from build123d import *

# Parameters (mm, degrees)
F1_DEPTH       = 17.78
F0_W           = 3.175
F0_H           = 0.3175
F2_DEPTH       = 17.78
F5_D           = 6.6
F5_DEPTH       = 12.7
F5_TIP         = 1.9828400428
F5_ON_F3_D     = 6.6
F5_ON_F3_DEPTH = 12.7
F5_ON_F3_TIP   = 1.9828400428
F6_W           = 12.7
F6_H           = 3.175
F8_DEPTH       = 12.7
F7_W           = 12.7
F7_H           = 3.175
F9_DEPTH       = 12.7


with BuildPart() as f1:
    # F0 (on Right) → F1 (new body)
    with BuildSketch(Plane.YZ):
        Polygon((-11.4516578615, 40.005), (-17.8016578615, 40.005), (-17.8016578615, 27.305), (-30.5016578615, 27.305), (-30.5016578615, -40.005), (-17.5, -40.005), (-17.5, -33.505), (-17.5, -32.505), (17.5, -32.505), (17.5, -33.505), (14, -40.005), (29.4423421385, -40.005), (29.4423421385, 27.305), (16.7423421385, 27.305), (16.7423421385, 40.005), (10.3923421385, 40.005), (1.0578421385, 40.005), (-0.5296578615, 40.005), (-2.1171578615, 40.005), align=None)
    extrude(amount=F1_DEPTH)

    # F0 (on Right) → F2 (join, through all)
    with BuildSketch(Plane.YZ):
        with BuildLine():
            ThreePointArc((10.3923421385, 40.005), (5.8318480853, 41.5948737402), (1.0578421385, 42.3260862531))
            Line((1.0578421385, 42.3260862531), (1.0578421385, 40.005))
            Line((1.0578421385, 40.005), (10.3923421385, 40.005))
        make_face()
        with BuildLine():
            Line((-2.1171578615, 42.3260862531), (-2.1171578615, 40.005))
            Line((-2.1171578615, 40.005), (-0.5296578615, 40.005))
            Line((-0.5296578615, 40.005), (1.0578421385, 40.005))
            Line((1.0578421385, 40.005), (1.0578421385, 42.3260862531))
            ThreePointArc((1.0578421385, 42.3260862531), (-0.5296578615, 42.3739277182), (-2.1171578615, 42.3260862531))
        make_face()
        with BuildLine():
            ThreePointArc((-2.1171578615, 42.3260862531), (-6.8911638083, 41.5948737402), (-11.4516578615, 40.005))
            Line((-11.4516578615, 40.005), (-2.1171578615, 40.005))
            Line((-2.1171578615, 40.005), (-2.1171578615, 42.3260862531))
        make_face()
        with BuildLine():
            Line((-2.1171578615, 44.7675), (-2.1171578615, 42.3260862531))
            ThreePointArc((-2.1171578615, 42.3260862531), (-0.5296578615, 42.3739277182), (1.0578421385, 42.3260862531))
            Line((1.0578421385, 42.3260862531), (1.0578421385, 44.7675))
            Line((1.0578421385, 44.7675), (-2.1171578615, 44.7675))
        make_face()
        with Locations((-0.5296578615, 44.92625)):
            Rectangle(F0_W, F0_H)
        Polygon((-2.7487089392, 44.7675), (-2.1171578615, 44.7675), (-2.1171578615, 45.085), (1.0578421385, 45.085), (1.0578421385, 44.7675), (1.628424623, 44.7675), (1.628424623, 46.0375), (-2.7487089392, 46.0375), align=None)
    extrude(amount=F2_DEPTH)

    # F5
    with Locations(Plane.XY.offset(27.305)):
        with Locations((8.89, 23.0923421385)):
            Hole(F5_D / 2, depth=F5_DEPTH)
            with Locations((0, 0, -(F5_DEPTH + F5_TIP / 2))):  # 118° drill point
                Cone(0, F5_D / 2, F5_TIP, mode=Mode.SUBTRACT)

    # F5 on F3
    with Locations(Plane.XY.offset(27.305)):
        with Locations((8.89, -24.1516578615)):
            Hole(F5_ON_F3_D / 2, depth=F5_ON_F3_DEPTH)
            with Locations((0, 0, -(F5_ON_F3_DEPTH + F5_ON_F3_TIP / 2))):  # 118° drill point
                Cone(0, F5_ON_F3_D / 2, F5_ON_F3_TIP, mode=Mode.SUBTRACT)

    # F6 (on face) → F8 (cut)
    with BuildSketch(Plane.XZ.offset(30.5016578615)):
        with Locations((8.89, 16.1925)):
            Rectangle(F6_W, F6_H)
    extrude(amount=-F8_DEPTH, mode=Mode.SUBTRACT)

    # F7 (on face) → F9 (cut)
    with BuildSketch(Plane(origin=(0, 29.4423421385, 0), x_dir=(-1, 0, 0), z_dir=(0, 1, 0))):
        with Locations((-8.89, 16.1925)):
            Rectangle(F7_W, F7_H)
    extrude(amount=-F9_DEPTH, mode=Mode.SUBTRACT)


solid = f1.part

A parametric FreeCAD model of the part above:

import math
import FreeCAD as App
import Part
import Sketcher

V = App.Vector
Q = App.Units.Quantity


def add_polygon(sketch, points):
    """Adds a closed chain of lines whose ends are joined by coincident constraints."""
    first, n = sketch.GeometryCount, len(points)
    for a, b in zip(points, points[1:] + points[:1]):
        sketch.addGeometry(Part.LineSegment(App.Vector(*a, 0), App.Vector(*b, 0)), False)
    for i in range(n):
        sketch.addConstraint(Sketcher.Constraint("Coincident", first + i, 2, first + (i + 1) % n, 1))

doc = App.newDocument("Part")
body = doc.addObject("PartDesign::Body", "Body")

# Sketch on YZ plane
sketch1 = body.newObject("Sketcher::SketchObject", "Sketch")
sketch1.AttachmentSupport = (doc.getObject("YZ_Plane"), [""])
sketch1.MapMode = "FlatFace"
add_polygon(sketch1, [(-17.8, 40), (-17.8, 27.3), (-30.5, 27.3), (-30.5, -40), (-17.5, -40), (-17.5, -32.5), (17.5, -32.5), (17.5, -33.5), (14, -40), (29.4, -40), (29.4, 27.3), (16.7, 27.3), (16.7, 40)])  # lines 0-12
sketch1.addConstraint(Sketcher.Constraint("Vertical", 0))
sketch1.addConstraint(Sketcher.Constraint("Horizontal", 1))
sketch1.addConstraint(Sketcher.Constraint("Vertical", 2))
sketch1.addConstraint(Sketcher.Constraint("Horizontal", 3))
sketch1.addConstraint(Sketcher.Constraint("Vertical", 4))
sketch1.addConstraint(Sketcher.Constraint("Horizontal", 5))
sketch1.addConstraint(Sketcher.Constraint("Vertical", 6))
sketch1.addConstraint(Sketcher.Constraint("Horizontal", 8))
sketch1.addConstraint(Sketcher.Constraint("Vertical", 9))
sketch1.addConstraint(Sketcher.Constraint("Horizontal", 10))
sketch1.addConstraint(Sketcher.Constraint("Vertical", 11))
sketch1.addConstraint(Sketcher.Constraint("Horizontal", 12))
sketch1.addConstraint(Sketcher.Constraint("Horizontal", 3, 2, 7, 2))
sketch1.addConstraint(Sketcher.Constraint("Horizontal", 1, 2, 9, 2))
sketch1.addConstraint(Sketcher.Constraint("Equal", 1, 10))
sketch1.addConstraint(Sketcher.Constraint("Equal", 10, 0))
sketch1.addConstraint(Sketcher.Constraint("DistanceX", 1, 2, 1, 1, Q("0.5 in")))
sketch1.addConstraint(Sketcher.Constraint("DistanceX", 12, 2, 12, 1, Q("1.36 in")))
sketch1.addConstraint(Sketcher.Constraint("DistanceY", 2, 2, 2, 1, Q("2.65 in")))
sketch1.addConstraint(Sketcher.Constraint("DistanceY", -1, 1, 0, 2, Q("1.075 in")))
sketch1.addConstraint(Sketcher.Constraint("DistanceX", 5, 1, 5, 2, Q("35 mm")))
sketch1.addConstraint(Sketcher.Constraint("DistanceY", 4, 1, 4, 2, Q("7.5 mm")))
sketch1.addConstraint(Sketcher.Constraint("DistanceY", 6, 2, 6, 1, Q("1 mm")))
sketch1.addConstraint(Sketcher.Constraint("DistanceX", 3, 2, -1, 1, Q("17.5 mm")))
sketch1.addConstraint(Sketcher.Constraint("DistanceX", -1, 1, 7, 2, Q("14 mm")))
sketch1.addConstraint(Sketcher.Constraint("DistanceX", 3, 1, 3, 2, Q("13.001658 mm")))
pad1 = body.newObject("PartDesign::Pad", "Pad")
pad1.Profile = sketch1
pad1.Length = Q("0.7 in")

# Sketch on YZ plane
sketch2 = body.newObject("Sketcher::SketchObject", "Sketch001")
sketch2.AttachmentSupport = (doc.getObject("YZ_Plane"), [""])
sketch2.MapMode = "FlatFace"
sketch2.addGeometry(Part.ArcOfCircle(Part.Circle(V(-0.5, 16, 0), V(0, 0, 1), 26.4), math.radians(66), math.radians(87)), False)
sketch2.addGeometry(Part.LineSegment(V(1.1, 42.3, 0), V(1.1, 44.8, 0)), False)
sketch2.addGeometry(Part.LineSegment(V(1.1, 44.8, 0), V(1.6, 44.8, 0)), False)
sketch2.addGeometry(Part.LineSegment(V(1.6, 44.8, 0), V(1.6, 46, 0)), False)
sketch2.addGeometry(Part.LineSegment(V(1.6, 46, 0), V(-2.7, 46, 0)), False)
sketch2.addGeometry(Part.LineSegment(V(-2.7, 46, 0), V(-2.7, 44.8, 0)), False)
sketch2.addGeometry(Part.LineSegment(V(-2.7, 44.8, 0), V(-2.1, 44.8, 0)), False)
sketch2.addGeometry(Part.LineSegment(V(-2.1, 44.8, 0), V(-2.1, 42.3, 0)), False)
sketch2.addGeometry(Part.ArcOfCircle(Part.Circle(V(-0.5, 16, 0), V(0, 0, 1), 26.4), math.radians(93), math.radians(114)), False)
sketch2.addGeometry(Part.LineSegment(V(-11.5, 40, 0), V(10.4, 40, 0)), False)
sketch2.addConstraint(Sketcher.Constraint("Coincident", 0, 2, 1, 1))
sketch2.addConstraint(Sketcher.Constraint("Coincident", 1, 2, 2, 1))
sketch2.addConstraint(Sketcher.Constraint("Coincident", 2, 2, 3, 1))
sketch2.addConstraint(Sketcher.Constraint("Coincident", 3, 2, 4, 1))
sketch2.addConstraint(Sketcher.Constraint("Coincident", 4, 2, 5, 1))
sketch2.addConstraint(Sketcher.Constraint("Coincident", 5, 2, 6, 1))
sketch2.addConstraint(Sketcher.Constraint("Coincident", 6, 2, 7, 1))
sketch2.addConstraint(Sketcher.Constraint("Coincident", 7, 2, 8, 1))
sketch2.addConstraint(Sketcher.Constraint("Coincident", 8, 2, 9, 1))
sketch2.addConstraint(Sketcher.Constraint("Coincident", 9, 2, 0, 1))
sketch2.addConstraint(Sketcher.Constraint("Vertical", 1))
sketch2.addConstraint(Sketcher.Constraint("Horizontal", 2))
sketch2.addConstraint(Sketcher.Constraint("Vertical", 3))
sketch2.addConstraint(Sketcher.Constraint("Horizontal", 4))
sketch2.addConstraint(Sketcher.Constraint("Vertical", 5))
sketch2.addConstraint(Sketcher.Constraint("Horizontal", 6))
sketch2.addConstraint(Sketcher.Constraint("Vertical", 7))
sketch2.addConstraint(Sketcher.Constraint("Horizontal", 9))
sketch2.addConstraint(Sketcher.Constraint("Coincident", 8, 3, 0, 3))
sketch2.addConstraint(Sketcher.Constraint("Equal", 0, 8))
sketch2.addConstraint(Sketcher.Constraint("Horizontal", 2, 2, 5, 2))
sketch2.addConstraint(Sketcher.Constraint("Horizontal", 0, 2, 7, 2))
sketch2.addConstraint(Sketcher.Constraint("DistanceX", 9, 1, 9, 2, Q("0.86 in")))
sketch2.addConstraint(Sketcher.Constraint("DistanceY", 3, 1, 3, 2, Q("0.05 in")))
sketch2.addConstraint(Sketcher.Constraint("DistanceY", -1, 1, 3, 2, Q("1.8125 in")))
sketch2.addConstraint(Sketcher.Constraint("DistanceY", -1, 1, 8, 2, Q("1.575 in")))
sketch2.addConstraint(Sketcher.Constraint("Radius", 0, Q("26.36254 mm")))
sketch2.addConstraint(Sketcher.Constraint("DistanceX", 0, 3, 0, 2, Q("0.0625 in")))
sketch2.addConstraint(Sketcher.Constraint("DistanceX", 6, 1, 6, 2, Q("0.631551 mm")))
sketch2.addConstraint(Sketcher.Constraint("DistanceX", 2, 1, 2, 2, Q("0.570582 mm")))
sketch2.addConstraint(Sketcher.Constraint("DistanceX", 4, 2, -1, 1, Q("2.748709 mm")))
pad2 = body.newObject("PartDesign::Pad", "Pad001")
pad2.Profile = sketch2
pad2.Length = Q("0.7 in")

# Sketch on XY plane
sketch3 = body.newObject("Sketcher::SketchObject", "Sketch002")
sketch3.AttachmentSupport = (doc.getObject("XY_Plane"), [""])
sketch3.MapMode = "FlatFace"
sketch3.AttachmentOffset = App.Placement(V(0, 0, 1.075 * 25.4), App.Rotation())
sketch3.addGeometry(Part.Circle(V(8.9, 23.1, 0), V(0, 0, 1), 3.3), False)
sketch3.addConstraint(Sketcher.Constraint("Diameter", 0, Q("6.6 mm")))
sketch3.addConstraint(Sketcher.Constraint("DistanceX", -1, 1, 0, 3, Q("0.35 in")))
sketch3.addConstraint(Sketcher.Constraint("DistanceY", -1, 1, 0, 3, Q("23.092342 mm")))
doc.recompute()
hole = body.newObject("PartDesign::Hole", "Hole")
hole.Profile = sketch3
hole.ThreadType = "None"
hole.Diameter = 6.6
hole.DepthType = "Dimension"
hole.Depth = Q("0.5 in")
hole.DrillPoint = "Angled"
hole.DrillPointAngle = 118

# Sketch on XY plane
sketch4 = body.newObject("Sketcher::SketchObject", "Sketch003")
sketch4.AttachmentSupport = (doc.getObject("XY_Plane"), [""])
sketch4.MapMode = "FlatFace"
sketch4.AttachmentOffset = App.Placement(V(0, 0, 1.075 * 25.4), App.Rotation())
sketch4.addGeometry(Part.Circle(V(8.9, -24.2, 0), V(0, 0, 1), 3.3), False)
sketch4.addConstraint(Sketcher.Constraint("Diameter", 0, Q("6.6 mm")))
sketch4.addConstraint(Sketcher.Constraint("DistanceX", -1, 1, 0, 3, Q("0.35 in")))
sketch4.addConstraint(Sketcher.Constraint("DistanceY", 0, 3, -1, 1, Q("24.151658 mm")))
doc.recompute()
hole2 = body.newObject("PartDesign::Hole", "Hole001")
hole2.Profile = sketch4
hole2.ThreadType = "None"
hole2.Diameter = 6.6
hole2.DepthType = "Dimension"
hole2.Depth = Q("0.5 in")
hole2.DrillPoint = "Angled"
hole2.DrillPointAngle = 118

# Sketch on XZ plane
sketch5 = body.newObject("Sketcher::SketchObject", "Sketch004")
sketch5.AttachmentSupport = (doc.getObject("XZ_Plane"), [""])
sketch5.MapMode = "FlatFace"
sketch5.AttachmentOffset = App.Placement(V(0, 0, 30.501658), App.Rotation())
add_polygon(sketch5, [(2.5, 17.8), (2.5, 14.6), (15.2, 14.6), (15.2, 17.8)])  # lines 0-3
sketch5.addConstraint(Sketcher.Constraint("Vertical", 0))
sketch5.addConstraint(Sketcher.Constraint("Horizontal", 1))
sketch5.addConstraint(Sketcher.Constraint("Vertical", 2))
sketch5.addConstraint(Sketcher.Constraint("Horizontal", 3))
sketch5.addConstraint(Sketcher.Constraint("DistanceX", 1, 1, 1, 2, Q("0.5 in")))
sketch5.addConstraint(Sketcher.Constraint("DistanceX", -1, 1, 0, 2, Q("0.1 in")))
sketch5.addConstraint(Sketcher.Constraint("DistanceY", -1, 1, 2, 2, Q("0.7 in")))
sketch5.addConstraint(Sketcher.Constraint("DistanceY", 0, 2, 0, 1, Q("0.125 in")))
pocket1 = body.newObject("PartDesign::Pocket", "Pocket")
pocket1.Profile = sketch5
pocket1.Length = Q("0.5 in")

# Sketch on XZ plane
sketch6 = body.newObject("Sketcher::SketchObject", "Sketch005")
sketch6.AttachmentSupport = (doc.getObject("XZ_Plane"), [""])
sketch6.MapMode = "FlatFace"
sketch6.AttachmentOffset = App.Placement(V(0, 0, -29.442342), App.Rotation())
add_polygon(sketch6, [(15.2, 17.8), (15.2, 14.6), (2.5, 14.6), (2.5, 17.8)])  # lines 0-3
sketch6.addConstraint(Sketcher.Constraint("Vertical", 0))
sketch6.addConstraint(Sketcher.Constraint("Horizontal", 1))
sketch6.addConstraint(Sketcher.Constraint("Vertical", 2))
sketch6.addConstraint(Sketcher.Constraint("Horizontal", 3))
sketch6.addConstraint(Sketcher.Constraint("DistanceX", 1, 2, 1, 1, Q("0.5 in")))
sketch6.addConstraint(Sketcher.Constraint("DistanceX", -1, 1, 0, 2, Q("0.6 in")))
sketch6.addConstraint(Sketcher.Constraint("DistanceY", -1, 1, 2, 2, Q("0.7 in")))
sketch6.addConstraint(Sketcher.Constraint("DistanceY", 0, 2, 0, 1, Q("0.125 in")))
pocket2 = body.newObject("PartDesign::Pocket", "Pocket001")
pocket2.Profile = sketch6
pocket2.Length = Q("0.5 in")
pocket2.Reversed = True

doc.recompute()
